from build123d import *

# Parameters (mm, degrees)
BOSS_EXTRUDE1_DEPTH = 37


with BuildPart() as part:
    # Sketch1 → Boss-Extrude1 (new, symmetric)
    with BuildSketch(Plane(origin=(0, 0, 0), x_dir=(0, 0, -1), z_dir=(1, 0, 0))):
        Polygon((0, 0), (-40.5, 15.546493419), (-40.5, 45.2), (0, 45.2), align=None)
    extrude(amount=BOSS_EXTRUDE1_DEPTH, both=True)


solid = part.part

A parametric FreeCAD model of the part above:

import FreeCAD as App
import Part
import Sketcher

V = App.Vector
Q = App.Units.Quantity


def add_polygon(sketch, points):
    """Adds a closed chain of lines whose ends are joined by coincident constraints."""
    first, n = sketch.GeometryCount, len(points)
    for a, b in zip(points, points[1:] + points[:1]):
        sketch.addGeometry(Part.LineSegment(App.Vector(*a, 0), App.Vector(*b, 0)), False)
    for i in range(n):
        sketch.addConstraint(Sketcher.Constraint("Coincident", first + i, 2, first + (i + 1) % n, 1))

doc = App.newDocument("Part")
body = doc.addObject("PartDesign::Body", "Body")

sketch1 = doc.addObject("Sketcher::SketchObject", "Sketch")
body.addObject(sketch1)
sketch1.AttachmentSupport = (doc.YZ_Plane, [""])
sketch1.MapMode = "FlatFace"
add_polygon(sketch1, [(15.546493, 40.5), (0, 0), (45.2, 0), (45.2, 40.5)])
sketch1.addConstraint(Sketcher.Constraint("Horizontal", 1))
sketch1.addConstraint(Sketcher.Constraint("Vertical", 2))
sketch1.addConstraint(Sketcher.Constraint("Horizontal", 3))
sketch1.addConstraint(Sketcher.Constraint("Coincident", 0, 2, -1, 1))
sketch1.addConstraint(Sketcher.Constraint("Angle", 0, Q("-111 deg")))
sketch1.addConstraint(Sketcher.Constraint("DistanceX", 1, 1, 1, 2, Q("45.2 mm")))
sketch1.addConstraint(Sketcher.Constraint("DistanceY", 2, 1, 2, 2, Q("40.5 mm")))
pad1 = doc.addObject("PartDesign::Pad", "Pad")
body.addObject(pad1)
pad1.Profile = sketch1
pad1.Length = 74
pad1.Midplane = True

doc.recompute()
